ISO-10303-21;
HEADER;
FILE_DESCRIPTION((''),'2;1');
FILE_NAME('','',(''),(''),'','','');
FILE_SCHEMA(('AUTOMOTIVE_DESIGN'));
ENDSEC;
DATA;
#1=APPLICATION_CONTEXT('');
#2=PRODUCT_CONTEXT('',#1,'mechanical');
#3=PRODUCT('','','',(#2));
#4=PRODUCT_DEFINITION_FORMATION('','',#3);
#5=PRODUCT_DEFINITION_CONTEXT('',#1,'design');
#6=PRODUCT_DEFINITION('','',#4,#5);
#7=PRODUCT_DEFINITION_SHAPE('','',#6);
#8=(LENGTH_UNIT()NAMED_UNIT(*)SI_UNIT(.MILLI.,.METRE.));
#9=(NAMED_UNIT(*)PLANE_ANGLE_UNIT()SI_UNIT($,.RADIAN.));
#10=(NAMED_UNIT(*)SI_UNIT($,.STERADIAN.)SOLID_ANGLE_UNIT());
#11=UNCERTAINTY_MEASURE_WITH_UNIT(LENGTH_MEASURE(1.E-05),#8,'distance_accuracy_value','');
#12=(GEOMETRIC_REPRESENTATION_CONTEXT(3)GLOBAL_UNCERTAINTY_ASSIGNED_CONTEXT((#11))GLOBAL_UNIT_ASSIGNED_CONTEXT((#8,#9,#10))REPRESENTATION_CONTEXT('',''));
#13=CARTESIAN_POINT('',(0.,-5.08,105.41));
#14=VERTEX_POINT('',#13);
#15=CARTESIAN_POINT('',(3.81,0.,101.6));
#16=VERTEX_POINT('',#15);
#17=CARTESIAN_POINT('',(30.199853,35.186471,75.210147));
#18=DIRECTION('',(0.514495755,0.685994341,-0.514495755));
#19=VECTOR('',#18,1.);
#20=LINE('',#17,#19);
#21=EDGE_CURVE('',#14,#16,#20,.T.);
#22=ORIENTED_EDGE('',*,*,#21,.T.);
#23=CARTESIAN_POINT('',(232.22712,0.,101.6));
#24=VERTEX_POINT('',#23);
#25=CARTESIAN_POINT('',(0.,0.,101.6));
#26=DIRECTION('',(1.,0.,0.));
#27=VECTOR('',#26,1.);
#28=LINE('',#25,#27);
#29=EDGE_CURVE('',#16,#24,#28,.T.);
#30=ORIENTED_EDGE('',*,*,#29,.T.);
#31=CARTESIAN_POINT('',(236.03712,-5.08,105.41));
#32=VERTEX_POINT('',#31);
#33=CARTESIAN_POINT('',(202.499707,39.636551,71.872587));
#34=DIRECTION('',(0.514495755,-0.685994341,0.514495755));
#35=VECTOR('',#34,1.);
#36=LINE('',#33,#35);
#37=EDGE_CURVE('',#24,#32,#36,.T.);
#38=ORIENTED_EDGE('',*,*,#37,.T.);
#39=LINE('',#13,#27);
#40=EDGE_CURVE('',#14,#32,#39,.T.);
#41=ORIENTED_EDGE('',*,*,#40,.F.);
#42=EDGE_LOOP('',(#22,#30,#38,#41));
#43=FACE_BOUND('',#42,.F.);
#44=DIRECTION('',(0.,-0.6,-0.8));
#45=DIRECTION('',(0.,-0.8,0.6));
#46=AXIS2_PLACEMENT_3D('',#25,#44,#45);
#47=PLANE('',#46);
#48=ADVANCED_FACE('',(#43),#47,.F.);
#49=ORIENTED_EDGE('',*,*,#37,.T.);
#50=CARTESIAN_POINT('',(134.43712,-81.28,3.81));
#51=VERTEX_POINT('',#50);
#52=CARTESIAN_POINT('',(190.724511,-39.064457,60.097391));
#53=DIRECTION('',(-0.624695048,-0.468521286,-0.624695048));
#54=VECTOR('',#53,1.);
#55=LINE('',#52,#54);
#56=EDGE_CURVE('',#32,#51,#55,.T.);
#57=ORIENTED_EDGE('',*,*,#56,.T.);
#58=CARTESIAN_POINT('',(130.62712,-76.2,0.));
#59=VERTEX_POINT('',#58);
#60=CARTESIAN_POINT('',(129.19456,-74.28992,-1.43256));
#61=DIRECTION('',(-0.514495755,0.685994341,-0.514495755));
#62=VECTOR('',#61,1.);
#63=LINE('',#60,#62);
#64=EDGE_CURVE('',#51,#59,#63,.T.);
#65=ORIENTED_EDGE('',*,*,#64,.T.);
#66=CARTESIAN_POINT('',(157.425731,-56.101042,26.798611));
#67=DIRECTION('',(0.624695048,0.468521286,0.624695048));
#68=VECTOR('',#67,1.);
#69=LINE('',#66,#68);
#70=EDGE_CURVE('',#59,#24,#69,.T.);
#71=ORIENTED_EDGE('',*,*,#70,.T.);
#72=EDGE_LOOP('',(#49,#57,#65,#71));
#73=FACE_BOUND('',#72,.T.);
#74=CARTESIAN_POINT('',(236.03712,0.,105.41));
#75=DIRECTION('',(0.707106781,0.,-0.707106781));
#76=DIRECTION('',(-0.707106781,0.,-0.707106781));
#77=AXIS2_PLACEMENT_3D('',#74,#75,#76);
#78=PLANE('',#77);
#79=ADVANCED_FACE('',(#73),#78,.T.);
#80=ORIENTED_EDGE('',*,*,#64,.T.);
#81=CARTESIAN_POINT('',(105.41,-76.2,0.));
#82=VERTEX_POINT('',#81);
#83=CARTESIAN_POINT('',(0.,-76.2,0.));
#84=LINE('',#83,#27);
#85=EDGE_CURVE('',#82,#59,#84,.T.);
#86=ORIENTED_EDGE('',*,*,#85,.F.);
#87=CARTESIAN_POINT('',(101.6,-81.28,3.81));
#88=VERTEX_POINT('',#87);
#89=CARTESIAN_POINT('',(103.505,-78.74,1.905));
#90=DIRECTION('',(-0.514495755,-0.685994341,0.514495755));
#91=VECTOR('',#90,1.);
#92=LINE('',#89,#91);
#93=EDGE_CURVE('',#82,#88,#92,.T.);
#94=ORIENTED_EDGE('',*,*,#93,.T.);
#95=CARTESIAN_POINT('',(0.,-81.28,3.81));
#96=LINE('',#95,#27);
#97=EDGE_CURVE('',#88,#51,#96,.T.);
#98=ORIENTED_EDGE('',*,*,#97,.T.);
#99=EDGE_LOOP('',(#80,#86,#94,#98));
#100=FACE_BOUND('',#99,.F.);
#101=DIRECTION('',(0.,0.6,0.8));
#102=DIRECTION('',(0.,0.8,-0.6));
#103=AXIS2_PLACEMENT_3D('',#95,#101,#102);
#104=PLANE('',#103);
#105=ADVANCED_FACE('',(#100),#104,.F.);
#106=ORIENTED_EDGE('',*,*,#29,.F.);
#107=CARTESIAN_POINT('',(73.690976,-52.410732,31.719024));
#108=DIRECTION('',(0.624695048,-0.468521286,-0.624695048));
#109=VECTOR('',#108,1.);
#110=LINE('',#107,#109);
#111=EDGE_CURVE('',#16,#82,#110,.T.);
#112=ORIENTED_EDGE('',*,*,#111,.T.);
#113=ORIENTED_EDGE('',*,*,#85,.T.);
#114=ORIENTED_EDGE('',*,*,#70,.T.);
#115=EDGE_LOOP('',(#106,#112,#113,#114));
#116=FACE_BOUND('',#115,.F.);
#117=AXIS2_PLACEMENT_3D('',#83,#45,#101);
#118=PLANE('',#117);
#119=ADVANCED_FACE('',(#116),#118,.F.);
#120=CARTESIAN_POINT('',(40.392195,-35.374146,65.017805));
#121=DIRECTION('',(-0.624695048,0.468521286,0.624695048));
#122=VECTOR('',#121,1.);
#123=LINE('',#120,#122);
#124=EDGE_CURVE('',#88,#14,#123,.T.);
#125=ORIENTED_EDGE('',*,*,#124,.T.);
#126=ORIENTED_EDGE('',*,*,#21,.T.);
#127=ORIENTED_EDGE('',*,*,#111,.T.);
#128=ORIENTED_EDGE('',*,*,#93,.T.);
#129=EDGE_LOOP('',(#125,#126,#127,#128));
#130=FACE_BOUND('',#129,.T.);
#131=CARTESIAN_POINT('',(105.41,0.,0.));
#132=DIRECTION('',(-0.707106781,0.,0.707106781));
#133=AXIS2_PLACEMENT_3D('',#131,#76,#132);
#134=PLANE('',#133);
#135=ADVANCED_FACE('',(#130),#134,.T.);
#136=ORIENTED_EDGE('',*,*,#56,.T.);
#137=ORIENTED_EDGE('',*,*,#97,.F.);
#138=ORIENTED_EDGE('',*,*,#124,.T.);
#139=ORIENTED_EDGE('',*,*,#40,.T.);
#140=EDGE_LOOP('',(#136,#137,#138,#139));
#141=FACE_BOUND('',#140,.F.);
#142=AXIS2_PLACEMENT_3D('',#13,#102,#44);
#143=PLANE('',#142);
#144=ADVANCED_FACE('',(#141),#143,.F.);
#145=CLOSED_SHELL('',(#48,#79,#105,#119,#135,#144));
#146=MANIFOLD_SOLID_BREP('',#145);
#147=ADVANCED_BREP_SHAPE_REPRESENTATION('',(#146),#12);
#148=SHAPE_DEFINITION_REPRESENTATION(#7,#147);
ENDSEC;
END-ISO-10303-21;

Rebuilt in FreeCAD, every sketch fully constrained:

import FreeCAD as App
import Part
import Sketcher
Q = App.Units.Quantity

doc = App.newDocument("Part")
body = doc.addObject("PartDesign::Body", "Body")

sketch1 = body.newObject("Sketcher::SketchObject", "Sketch")
sketch1.AttachmentSupport = (doc.getObject("YZ_Plane"), [""])
sketch1.MapMode = "FlatFace"
sketch1.addGeometry([
    Part.LineSegment(App.Vector(-81, 4, 0), App.Vector(-76, 0, 0)),
    Part.LineSegment(App.Vector(-76, 0, 0), App.Vector(0, 102, 0)),
    Part.LineSegment(App.Vector(0, 102, 0), App.Vector(-5, 105, 0)),
    Part.LineSegment(App.Vector(-5, 105, 0), App.Vector(-81, 4, 0)),
], False)
sketch1.addConstraint([
    Sketcher.Constraint("Coincident", 0, 2, 1, 1),
    Sketcher.Constraint("Coincident", 1, 2, 2, 1),
    Sketcher.Constraint("Coincident", 2, 2, 3, 1),
    Sketcher.Constraint("Coincident", 3, 2, 0, 1),
    Sketcher.Constraint("PointOnObject", 0, 2, -1),
    Sketcher.Constraint("PointOnObject", 1, 2, -2),
    Sketcher.Constraint("Perpendicular", 0, 1),
    Sketcher.Constraint("Perpendicular", 1, 2),
    Sketcher.Constraint("Perpendicular", 2, 3),
    Sketcher.Constraint("Distance", 1, Q("5 in")),
    Sketcher.Constraint("DistanceX", 0, 2, -1, 1, Q("3 in")),
    Sketcher.Constraint("DistanceX", 2, 2, -1, 1, Q("0.2 in")),
])
pad1 = body.newObject("PartDesign::Pad", "Pad")
pad1.Profile = sketch1
pad1.Length = Q("9.5 in")

sketch2 = body.newObject("Sketcher::SketchObject", "Sketch001")
sketch2.AttachmentSupport = (doc.getObject("XZ_Plane"), [""])
sketch2.MapMode = "FlatFace"
sketch2.addGeometry([
    Part.LineSegment(App.Vector(236, 105, 0), App.Vector(131, 0, 0)),
    Part.LineSegment(App.Vector(131, 0, 0), App.Vector(241, 0, 0)),
    Part.LineSegment(App.Vector(241, 0, 0), App.Vector(241, 105, 0)),
    Part.LineSegment(App.Vector(241, 105, 0), App.Vector(236, 105, 0)),
    Part.LineSegment(App.Vector(0, 105, 0), App.Vector(0, 0, 0)),
    Part.LineSegment(App.Vector(0, 0, 0), App.Vector(105, 0, 0)),
    Part.LineSegment(App.Vector(105, 0, 0), App.Vector(0, 105, 0)),
], False)
sketch2.addConstraint([
    Sketcher.Constraint("Coincident", 0, 2, 1, 1),
    Sketcher.Constraint("Coincident", 1, 2, 2, 1),
    Sketcher.Constraint("Coincident", 2, 2, 3, 1),
    Sketcher.Constraint("Coincident", 3, 2, 0, 1),
    Sketcher.Constraint("Coincident", 4, 2, 5, 1),
    Sketcher.Constraint("Coincident", 5, 2, 6, 1),
    Sketcher.Constraint("Coincident", 6, 2, 4, 1),
    Sketcher.Constraint("Horizontal", 1),
    Sketcher.Constraint("Vertical", 2),
    Sketcher.Constraint("Horizontal", 3),
    Sketcher.Constraint("Vertical", 4),
    Sketcher.Constraint("Horizontal", 5),
    Sketcher.Constraint("Coincident", 4, 2, -1, 1),
    Sketcher.Constraint("PointOnObject", 0, 2, -1),
    Sketcher.Constraint("Perpendicular", 0, 6),
    Sketcher.Constraint("Horizontal", 3, 2, 6, 2),
    Sketcher.Constraint("Equal", 5, 2),
    Sketcher.Constraint("DistanceX", 5, 1, 5, 2, Q("4.15 in")),
    Sketcher.Constraint("DistanceX", -1, 1, 1, 2, Q("9.5 in")),
    Sketcher.Constraint("DistanceX", 1, 1, 1, 2, Q("4.3572 in")),
])
pocket1 = body.newObject("PartDesign::Pocket", "Pocket")
pocket1.Profile = sketch2
pocket1.Type = "ThroughAll"
pocket1.Reversed = True

doc.recompute()
